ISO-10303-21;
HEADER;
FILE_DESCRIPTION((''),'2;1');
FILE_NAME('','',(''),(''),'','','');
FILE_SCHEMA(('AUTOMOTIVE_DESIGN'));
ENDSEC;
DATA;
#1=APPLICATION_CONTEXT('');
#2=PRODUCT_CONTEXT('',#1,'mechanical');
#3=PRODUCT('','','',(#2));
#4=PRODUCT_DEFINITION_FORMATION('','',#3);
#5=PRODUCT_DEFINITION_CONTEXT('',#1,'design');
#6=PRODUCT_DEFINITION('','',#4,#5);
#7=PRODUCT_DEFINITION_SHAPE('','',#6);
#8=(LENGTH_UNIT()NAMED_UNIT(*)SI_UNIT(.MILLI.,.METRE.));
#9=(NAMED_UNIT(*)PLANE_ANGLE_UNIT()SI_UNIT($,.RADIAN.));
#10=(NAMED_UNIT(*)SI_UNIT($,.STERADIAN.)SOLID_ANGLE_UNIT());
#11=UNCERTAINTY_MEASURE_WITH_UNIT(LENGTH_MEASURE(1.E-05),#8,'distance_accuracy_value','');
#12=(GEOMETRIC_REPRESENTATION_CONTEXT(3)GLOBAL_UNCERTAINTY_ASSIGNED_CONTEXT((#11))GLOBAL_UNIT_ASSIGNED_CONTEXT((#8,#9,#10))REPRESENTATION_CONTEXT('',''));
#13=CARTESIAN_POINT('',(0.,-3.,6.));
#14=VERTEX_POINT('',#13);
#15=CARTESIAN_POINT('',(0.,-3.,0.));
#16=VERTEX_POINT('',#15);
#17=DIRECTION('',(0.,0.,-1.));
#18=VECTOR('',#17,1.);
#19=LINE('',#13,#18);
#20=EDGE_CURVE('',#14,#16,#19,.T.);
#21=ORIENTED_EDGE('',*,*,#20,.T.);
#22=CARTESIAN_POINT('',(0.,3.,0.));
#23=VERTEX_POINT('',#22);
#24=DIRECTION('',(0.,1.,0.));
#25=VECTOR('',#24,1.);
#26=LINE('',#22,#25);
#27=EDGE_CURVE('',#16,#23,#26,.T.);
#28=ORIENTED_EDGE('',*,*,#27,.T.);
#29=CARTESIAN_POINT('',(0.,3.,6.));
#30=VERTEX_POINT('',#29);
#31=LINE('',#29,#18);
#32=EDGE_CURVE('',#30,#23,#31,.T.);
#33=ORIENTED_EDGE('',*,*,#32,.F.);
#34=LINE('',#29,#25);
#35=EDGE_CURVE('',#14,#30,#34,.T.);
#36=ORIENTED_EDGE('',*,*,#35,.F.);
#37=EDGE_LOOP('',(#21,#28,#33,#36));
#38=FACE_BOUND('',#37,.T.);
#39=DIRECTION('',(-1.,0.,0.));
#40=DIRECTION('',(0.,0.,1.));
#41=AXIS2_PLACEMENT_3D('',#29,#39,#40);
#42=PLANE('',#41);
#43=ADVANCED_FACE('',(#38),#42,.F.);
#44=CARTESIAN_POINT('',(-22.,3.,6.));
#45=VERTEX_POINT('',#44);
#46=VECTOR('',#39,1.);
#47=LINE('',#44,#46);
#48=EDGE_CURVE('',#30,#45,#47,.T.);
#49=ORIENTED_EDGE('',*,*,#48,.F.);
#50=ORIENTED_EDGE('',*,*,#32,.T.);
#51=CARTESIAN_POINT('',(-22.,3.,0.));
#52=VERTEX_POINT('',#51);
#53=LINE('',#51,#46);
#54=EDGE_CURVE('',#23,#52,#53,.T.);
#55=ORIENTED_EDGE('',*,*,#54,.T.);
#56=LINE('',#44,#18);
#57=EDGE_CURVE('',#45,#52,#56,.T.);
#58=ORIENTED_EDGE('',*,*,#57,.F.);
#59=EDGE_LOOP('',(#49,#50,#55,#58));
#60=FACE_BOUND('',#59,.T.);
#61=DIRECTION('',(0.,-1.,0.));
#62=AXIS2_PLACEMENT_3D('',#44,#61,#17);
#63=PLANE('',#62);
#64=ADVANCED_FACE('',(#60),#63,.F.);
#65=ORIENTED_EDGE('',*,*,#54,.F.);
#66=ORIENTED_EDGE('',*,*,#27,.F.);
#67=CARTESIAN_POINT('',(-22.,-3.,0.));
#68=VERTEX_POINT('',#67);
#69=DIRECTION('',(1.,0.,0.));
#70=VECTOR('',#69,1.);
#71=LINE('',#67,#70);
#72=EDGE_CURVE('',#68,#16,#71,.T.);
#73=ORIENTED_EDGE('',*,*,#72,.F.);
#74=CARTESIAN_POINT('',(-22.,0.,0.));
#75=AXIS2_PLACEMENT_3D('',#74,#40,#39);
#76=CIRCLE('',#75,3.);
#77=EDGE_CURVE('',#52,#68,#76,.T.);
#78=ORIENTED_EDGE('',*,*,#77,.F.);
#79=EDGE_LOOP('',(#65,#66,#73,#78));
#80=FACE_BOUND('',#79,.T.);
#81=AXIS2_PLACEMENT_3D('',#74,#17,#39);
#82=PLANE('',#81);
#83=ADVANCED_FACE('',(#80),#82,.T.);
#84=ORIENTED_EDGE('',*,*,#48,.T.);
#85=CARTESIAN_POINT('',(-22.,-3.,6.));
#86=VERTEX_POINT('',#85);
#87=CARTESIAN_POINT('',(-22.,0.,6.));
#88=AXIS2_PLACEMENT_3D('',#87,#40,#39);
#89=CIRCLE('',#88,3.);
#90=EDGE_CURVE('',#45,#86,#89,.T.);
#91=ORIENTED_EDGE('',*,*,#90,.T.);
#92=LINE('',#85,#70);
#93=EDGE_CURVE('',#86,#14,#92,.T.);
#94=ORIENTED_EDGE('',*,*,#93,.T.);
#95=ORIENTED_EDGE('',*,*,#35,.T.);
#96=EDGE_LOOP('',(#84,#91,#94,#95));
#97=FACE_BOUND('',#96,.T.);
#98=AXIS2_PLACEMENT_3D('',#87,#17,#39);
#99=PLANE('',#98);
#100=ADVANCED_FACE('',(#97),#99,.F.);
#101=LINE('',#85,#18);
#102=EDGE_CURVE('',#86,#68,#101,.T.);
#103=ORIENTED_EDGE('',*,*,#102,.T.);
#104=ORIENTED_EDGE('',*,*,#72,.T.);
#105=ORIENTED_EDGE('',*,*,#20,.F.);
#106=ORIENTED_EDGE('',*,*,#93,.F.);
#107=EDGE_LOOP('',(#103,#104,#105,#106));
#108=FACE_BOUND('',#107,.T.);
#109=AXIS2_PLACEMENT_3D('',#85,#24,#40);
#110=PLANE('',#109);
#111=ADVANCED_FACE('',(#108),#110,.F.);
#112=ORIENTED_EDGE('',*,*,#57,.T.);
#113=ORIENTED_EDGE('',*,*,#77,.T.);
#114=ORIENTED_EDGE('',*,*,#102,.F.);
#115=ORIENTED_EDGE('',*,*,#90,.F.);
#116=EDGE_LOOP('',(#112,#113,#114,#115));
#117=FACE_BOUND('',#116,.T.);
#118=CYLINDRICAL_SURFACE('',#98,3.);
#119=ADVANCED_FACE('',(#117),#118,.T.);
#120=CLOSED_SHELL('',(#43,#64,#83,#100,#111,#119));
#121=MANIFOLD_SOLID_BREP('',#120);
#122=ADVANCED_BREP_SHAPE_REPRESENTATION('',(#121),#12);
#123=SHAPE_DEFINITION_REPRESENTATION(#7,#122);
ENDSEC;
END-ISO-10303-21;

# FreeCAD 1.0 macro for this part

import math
import FreeCAD as App
import Part
import Sketcher
Q = App.Units.Quantity

doc = App.newDocument("Part")
body = doc.addObject("PartDesign::Body", "Body")

sketch1 = body.newObject("Sketcher::SketchObject", "Sketch")
sketch1.AttachmentSupport = (doc.getObject("XY_Plane"), [""])
sketch1.MapMode = "FlatFace"
sketch1.addGeometry([
    Part.LineSegment(App.Vector(-22, -3, 0), App.Vector(0, -3, 0)),
    Part.LineSegment(App.Vector(0, -3, 0), App.Vector(0, 3, 0)),
    Part.LineSegment(App.Vector(0, 3, 0), App.Vector(-22, 3, 0)),
    Part.ArcOfCircle(Part.Circle(App.Vector(-22, 0, 0), App.Vector(0, 0, 1), 3), math.radians(90), math.radians(270)),
], False)
sketch1.addConstraint([
    Sketcher.Constraint("Coincident", 0, 2, 1, 1),
    Sketcher.Constraint("Coincident", 1, 2, 2, 1),
    Sketcher.Constraint("Tangent", 2, 2, 3, 1),
    Sketcher.Constraint("Tangent", 3, 2, 0, 1),
    Sketcher.Constraint("Horizontal", 0),
    Sketcher.Constraint("Vertical", 1),
    Sketcher.Constraint("Horizontal", 2),
    Sketcher.Constraint("Symmetric", 0, 2, 1, 2, -1, 1),
    Sketcher.Constraint("Radius", 3, Q("3 mm")),
    Sketcher.Constraint("DistanceX", 0, 1, 0, 2, Q("22 mm")),
])
pad1 = body.newObject("PartDesign::Pad", "Pad")
pad1.Profile = sketch1
pad1.Length = 6

doc.recompute()
